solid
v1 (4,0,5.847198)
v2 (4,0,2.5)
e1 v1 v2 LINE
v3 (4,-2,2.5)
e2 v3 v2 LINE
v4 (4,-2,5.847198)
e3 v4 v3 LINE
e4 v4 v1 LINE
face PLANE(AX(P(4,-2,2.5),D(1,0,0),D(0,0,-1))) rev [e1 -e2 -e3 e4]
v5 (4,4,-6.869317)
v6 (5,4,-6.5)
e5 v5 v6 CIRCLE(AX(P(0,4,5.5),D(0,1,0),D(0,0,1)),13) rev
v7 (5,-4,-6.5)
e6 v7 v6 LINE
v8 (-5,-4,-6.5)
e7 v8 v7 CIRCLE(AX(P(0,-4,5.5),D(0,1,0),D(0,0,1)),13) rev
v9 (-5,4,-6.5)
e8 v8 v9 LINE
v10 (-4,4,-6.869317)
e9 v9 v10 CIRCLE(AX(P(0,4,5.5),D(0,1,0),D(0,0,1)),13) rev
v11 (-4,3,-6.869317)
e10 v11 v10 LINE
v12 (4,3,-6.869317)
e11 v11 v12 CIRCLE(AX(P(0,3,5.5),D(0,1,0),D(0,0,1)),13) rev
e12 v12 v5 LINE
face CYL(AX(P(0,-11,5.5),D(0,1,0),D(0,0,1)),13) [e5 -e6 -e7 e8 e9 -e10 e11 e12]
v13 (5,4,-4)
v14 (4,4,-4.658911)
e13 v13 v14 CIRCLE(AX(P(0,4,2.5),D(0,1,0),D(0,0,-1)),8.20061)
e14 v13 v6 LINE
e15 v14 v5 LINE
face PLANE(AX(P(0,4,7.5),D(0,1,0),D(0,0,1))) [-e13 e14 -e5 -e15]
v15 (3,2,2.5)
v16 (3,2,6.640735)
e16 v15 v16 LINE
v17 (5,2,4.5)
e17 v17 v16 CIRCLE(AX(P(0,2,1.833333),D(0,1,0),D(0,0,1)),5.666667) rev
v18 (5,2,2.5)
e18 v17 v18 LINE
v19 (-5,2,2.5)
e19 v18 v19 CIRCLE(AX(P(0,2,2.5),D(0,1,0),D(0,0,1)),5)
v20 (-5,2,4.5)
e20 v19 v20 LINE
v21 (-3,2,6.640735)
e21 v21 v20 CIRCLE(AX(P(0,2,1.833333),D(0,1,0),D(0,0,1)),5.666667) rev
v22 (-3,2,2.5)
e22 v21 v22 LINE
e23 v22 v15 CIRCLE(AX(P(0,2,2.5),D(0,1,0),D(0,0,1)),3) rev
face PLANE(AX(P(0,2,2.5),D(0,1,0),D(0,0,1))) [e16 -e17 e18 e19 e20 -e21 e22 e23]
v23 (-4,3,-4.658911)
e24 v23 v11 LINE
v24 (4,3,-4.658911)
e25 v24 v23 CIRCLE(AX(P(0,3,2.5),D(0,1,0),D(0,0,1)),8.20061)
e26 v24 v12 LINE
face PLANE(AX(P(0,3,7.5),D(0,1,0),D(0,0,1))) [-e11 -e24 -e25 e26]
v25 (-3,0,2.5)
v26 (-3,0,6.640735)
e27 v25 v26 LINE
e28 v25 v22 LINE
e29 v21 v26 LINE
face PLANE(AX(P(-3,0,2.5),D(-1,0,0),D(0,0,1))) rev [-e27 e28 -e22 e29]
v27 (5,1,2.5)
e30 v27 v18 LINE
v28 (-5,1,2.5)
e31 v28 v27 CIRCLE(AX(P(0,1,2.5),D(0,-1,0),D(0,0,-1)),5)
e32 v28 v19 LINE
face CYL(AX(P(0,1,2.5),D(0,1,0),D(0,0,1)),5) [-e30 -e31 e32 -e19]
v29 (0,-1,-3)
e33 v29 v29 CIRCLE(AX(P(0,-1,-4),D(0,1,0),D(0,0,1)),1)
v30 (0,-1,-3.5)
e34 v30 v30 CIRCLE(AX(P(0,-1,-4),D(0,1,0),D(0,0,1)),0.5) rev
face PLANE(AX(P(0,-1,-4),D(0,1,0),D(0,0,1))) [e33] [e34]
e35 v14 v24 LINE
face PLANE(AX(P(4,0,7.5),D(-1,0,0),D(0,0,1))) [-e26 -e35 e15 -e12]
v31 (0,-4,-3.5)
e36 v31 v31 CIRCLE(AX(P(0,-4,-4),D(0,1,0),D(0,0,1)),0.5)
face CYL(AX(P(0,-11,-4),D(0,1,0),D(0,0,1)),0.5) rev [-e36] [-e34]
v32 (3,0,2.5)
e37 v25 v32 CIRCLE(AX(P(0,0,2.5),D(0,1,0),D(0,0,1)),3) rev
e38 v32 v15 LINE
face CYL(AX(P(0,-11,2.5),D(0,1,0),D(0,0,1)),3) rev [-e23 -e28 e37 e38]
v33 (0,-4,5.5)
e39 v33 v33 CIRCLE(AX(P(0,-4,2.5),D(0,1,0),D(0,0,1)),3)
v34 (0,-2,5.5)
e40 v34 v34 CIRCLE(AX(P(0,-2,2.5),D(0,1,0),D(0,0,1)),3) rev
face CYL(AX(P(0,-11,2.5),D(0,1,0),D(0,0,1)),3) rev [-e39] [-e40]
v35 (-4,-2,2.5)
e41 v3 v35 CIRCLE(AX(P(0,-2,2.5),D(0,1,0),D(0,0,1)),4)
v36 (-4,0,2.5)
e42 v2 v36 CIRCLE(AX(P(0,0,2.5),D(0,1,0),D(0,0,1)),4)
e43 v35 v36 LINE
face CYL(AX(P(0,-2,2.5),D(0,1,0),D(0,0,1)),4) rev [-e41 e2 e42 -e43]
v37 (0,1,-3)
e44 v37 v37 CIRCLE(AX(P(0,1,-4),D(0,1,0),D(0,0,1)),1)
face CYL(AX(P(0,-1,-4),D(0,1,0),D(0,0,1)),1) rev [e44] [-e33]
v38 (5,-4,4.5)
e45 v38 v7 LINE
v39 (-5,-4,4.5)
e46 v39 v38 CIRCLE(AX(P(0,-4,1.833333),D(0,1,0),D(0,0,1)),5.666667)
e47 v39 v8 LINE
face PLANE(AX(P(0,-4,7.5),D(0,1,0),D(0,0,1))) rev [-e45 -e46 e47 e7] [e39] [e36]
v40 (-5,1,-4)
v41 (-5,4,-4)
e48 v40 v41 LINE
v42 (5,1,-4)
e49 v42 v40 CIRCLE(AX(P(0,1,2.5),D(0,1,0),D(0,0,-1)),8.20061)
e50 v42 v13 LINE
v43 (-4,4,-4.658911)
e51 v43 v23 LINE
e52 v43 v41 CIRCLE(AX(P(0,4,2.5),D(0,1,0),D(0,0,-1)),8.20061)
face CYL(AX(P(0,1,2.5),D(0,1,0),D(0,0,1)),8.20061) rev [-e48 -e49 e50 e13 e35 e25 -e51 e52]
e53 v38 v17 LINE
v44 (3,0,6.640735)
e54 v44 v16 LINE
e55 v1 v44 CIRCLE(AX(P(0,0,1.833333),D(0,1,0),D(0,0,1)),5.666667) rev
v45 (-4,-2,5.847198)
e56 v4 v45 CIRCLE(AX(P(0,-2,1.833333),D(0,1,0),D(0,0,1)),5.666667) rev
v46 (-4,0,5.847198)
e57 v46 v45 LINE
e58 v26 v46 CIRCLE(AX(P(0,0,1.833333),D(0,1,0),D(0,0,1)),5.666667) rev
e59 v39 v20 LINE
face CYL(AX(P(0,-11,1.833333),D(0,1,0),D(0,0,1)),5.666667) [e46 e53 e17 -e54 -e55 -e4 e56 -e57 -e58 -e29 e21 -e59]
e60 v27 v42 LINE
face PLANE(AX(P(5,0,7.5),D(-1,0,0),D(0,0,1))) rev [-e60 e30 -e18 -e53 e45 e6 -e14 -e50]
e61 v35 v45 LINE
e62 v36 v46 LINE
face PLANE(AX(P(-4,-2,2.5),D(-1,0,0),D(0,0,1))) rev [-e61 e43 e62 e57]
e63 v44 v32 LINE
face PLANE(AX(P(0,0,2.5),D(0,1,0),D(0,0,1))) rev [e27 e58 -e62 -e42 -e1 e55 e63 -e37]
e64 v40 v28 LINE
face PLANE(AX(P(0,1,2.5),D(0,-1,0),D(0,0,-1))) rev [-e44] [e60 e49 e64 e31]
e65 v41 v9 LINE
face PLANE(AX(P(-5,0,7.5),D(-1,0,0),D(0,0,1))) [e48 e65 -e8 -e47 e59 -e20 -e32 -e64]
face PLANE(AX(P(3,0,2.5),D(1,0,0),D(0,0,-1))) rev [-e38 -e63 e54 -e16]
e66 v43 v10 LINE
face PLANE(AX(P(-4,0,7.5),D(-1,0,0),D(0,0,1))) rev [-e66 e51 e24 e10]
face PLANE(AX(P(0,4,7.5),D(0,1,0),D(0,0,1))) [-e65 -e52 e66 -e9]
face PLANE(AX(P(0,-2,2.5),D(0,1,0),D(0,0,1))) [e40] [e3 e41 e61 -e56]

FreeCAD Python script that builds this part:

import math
import FreeCAD as App
import Part
import Sketcher
from FreeCAD import Vector

doc = App.newDocument("Part")
body = doc.addObject("PartDesign::Body", "Body")

# Sketch on XY plane
sketch1 = body.newObject("Sketcher::SketchObject", "Sketch")
sketch1.AttachmentSupport = (doc.getObject("XY_Plane"), [""])
sketch1.MapMode = "FlatFace"
sketch1.addGeometry(Part.LineSegment(Vector(-5, 4, 0), Vector(-5, -4, 0)), False)
sketch1.addGeometry(Part.LineSegment(Vector(-5, -4, 0), Vector(5, -4, 0)), False)
sketch1.addGeometry(Part.LineSegment(Vector(5, -4, 0), Vector(5, 4, 0)), False)
sketch1.addGeometry(Part.LineSegment(Vector(5, 4, 0), Vector(4, 4, 0)), False)
sketch1.addGeometry(Part.LineSegment(Vector(4, 4, 0), Vector(4, 3, 0)), False)
sketch1.addGeometry(Part.LineSegment(Vector(4, 3, 0), Vector(-4, 3, 0)), False)
sketch1.addGeometry(Part.LineSegment(Vector(-4, 3, 0), Vector(-4, 4, 0)), False)
sketch1.addGeometry(Part.LineSegment(Vector(-4, 4, 0), Vector(-5, 4, 0)), False)
sketch1.addConstraint(Sketcher.Constraint("Coincident", 0, 2, 1, 1))
sketch1.addConstraint(Sketcher.Constraint("Coincident", 1, 2, 2, 1))
sketch1.addConstraint(Sketcher.Constraint("Coincident", 2, 2, 3, 1))
sketch1.addConstraint(Sketcher.Constraint("Coincident", 3, 2, 4, 1))
sketch1.addConstraint(Sketcher.Constraint("Coincident", 4, 2, 5, 1))
sketch1.addConstraint(Sketcher.Constraint("Coincident", 5, 2, 6, 1))
sketch1.addConstraint(Sketcher.Constraint("Coincident", 6, 2, 7, 1))
sketch1.addConstraint(Sketcher.Constraint("Coincident", 7, 2, 0, 1))
sketch1.addConstraint(Sketcher.Constraint("Vertical", 0))
sketch1.addConstraint(Sketcher.Constraint("Horizontal", 1))
sketch1.addConstraint(Sketcher.Constraint("Vertical", 2))
sketch1.addConstraint(Sketcher.Constraint("Horizontal", 3))
sketch1.addConstraint(Sketcher.Constraint("Vertical", 4))
sketch1.addConstraint(Sketcher.Constraint("Horizontal", 5))
sketch1.addConstraint(Sketcher.Constraint("Vertical", 6))
sketch1.addConstraint(Sketcher.Constraint("Horizontal", 7))
sketch1.addConstraint(Sketcher.Constraint("Symmetric", 0, 2, 2, 2, -1, 1))
sketch1.addConstraint(Sketcher.Constraint("Symmetric", 3, 2, 6, 2, -2))
sketch1.addConstraint(Sketcher.Constraint("Equal", 5, 0))
sketch1.addConstraint(Sketcher.Constraint("Equal", 7, 4))
sketch1.addConstraint(Sketcher.Constraint("DistanceX", 1, 1, 1, 2, 10.0))
sketch1.addConstraint(Sketcher.Constraint("DistanceX", 3, 2, 3, 1, 1.0))
pad1 = body.newObject("PartDesign::Pad", "Pad")
pad1.Profile = sketch1
pad1.Length = 15
pad1.Midplane = True

# Sketch on XZ plane
sketch2 = body.newObject("Sketcher::SketchObject", "Sketch001")
sketch2.AttachmentSupport = (doc.getObject("XZ_Plane"), [""])
sketch2.MapMode = "FlatFace"
sketch2.AttachmentOffset = App.Placement(Vector(0, 0, -4), App.Rotation())
sketch2.addGeometry(Part.LineSegment(Vector(-5, -7.5, 0), Vector(-5, -6.5, 0)), False)
sketch2.addGeometry(Part.ArcOfCircle(Part.Circle(Vector(0, 5.5, 0), Vector(0, 0, 1), 13), math.radians(-113), math.radians(-90)), False)
sketch2.addGeometry(Part.LineSegment(Vector(0, -7.5, 0), Vector(-5, -7.5, 0)), False)
sketch2.addGeometry(Part.ArcOfCircle(Part.Circle(Vector(0, 5.5, 0), Vector(0, 0, 1), 13), math.radians(-90), math.radians(-72.08)), False)
sketch2.addGeometry(Part.ArcOfCircle(Part.Circle(Vector(0, 5.5, 0), Vector(0, 0, 1), 13), math.radians(-72.08), math.radians(-67.38)), False)
sketch2.addGeometry(Part.LineSegment(Vector(5, -6.5, 0), Vector(5, -7.5, 0)), False)
sketch2.addGeometry(Part.LineSegment(Vector(5, -7.5, 0), Vector(0, -7.5, 0)), False)
sketch2.addGeometry(Part.Circle(Vector(0, -4, 0), Vector(0, 0, 1), 0.5), False)
sketch2.addGeometry(Part.LineSegment(Vector(-5, 7.5, 0), Vector(0, 7.5, 0)), False)
sketch2.addGeometry(Part.ArcOfCircle(Part.Circle(Vector(0, 1.8, 0), Vector(0, 0, 1), 5.7), math.radians(90), math.radians(152)), False)
sketch2.addGeometry(Part.LineSegment(Vector(-5, 4.5, 0), Vector(-5, 7.5, 0)), False)
sketch2.addGeometry(Part.ArcOfCircle(Part.Circle(Vector(0, 1.8, 0), Vector(0, 0, 1), 5.7), math.radians(28.07), math.radians(45.1)), False)
sketch2.addGeometry(Part.ArcOfCircle(Part.Circle(Vector(0, 1.8, 0), Vector(0, 0, 1), 5.7), math.radians(45), math.radians(90)), False)
sketch2.addGeometry(Part.LineSegment(Vector(0, 7.5, 0), Vector(5, 7.5, 0)), False)
sketch2.addGeometry(Part.LineSegment(Vector(5, 7.5, 0), Vector(5, 4.5, 0)), False)
sketch2.addGeometry(Part.Circle(Vector(0, 2.5, 0), Vector(0, 0, 1), 3), False)
sketch2.addConstraint(Sketcher.Constraint("Coincident", 0, 2, 1, 1))
sketch2.addConstraint(Sketcher.Constraint("Tangent", 1, 2, 2, 1))
sketch2.addConstraint(Sketcher.Constraint("Coincident", 2, 2, 0, 1))
sketch2.addConstraint(Sketcher.Constraint("Tangent", 3, 2, 4, 1))
sketch2.addConstraint(Sketcher.Constraint("Coincident", 4, 2, 5, 1))
sketch2.addConstraint(Sketcher.Constraint("Coincident", 5, 2, 6, 1))
sketch2.addConstraint(Sketcher.Constraint("Tangent", 6, 2, 3, 1))
sketch2.addConstraint(Sketcher.Constraint("Tangent", 8, 2, 9, 1))
sketch2.addConstraint(Sketcher.Constraint("Coincident", 9, 2, 10, 1))
sketch2.addConstraint(Sketcher.Constraint("Coincident", 10, 2, 8, 1))
sketch2.addConstraint(Sketcher.Constraint("Tangent", 11, 2, 12, 1))
sketch2.addConstraint(Sketcher.Constraint("Tangent", 12, 2, 13, 1))
sketch2.addConstraint(Sketcher.Constraint("Coincident", 13, 2, 14, 1))
sketch2.addConstraint(Sketcher.Constraint("Coincident", 14, 2, 11, 1))
sketch2.addConstraint(Sketcher.Constraint("Vertical", 0))
sketch2.addConstraint(Sketcher.Constraint("Horizontal", 2))
sketch2.addConstraint(Sketcher.Constraint("Vertical", 5))
sketch2.addConstraint(Sketcher.Constraint("Horizontal", 6))
sketch2.addConstraint(Sketcher.Constraint("Horizontal", 8))
sketch2.addConstraint(Sketcher.Constraint("Vertical", 10))
sketch2.addConstraint(Sketcher.Constraint("Horizontal", 13))
sketch2.addConstraint(Sketcher.Constraint("Vertical", 14))
sketch2.addConstraint(Sketcher.Constraint("Coincident", 3, 3, 1, 3))
sketch2.addConstraint(Sketcher.Constraint("Coincident", 11, 3, 9, 3))
sketch2.addConstraint(Sketcher.Constraint("Coincident", 12, 2, 8, 2))
sketch2.addConstraint(Sketcher.Constraint("Equal", 1, 3))
sketch2.addConstraint(Sketcher.Constraint("Equal", 3, 4))
sketch2.addConstraint(Sketcher.Constraint("Symmetric", 1, 2, 8, 2, -1, 1))
sketch2.addConstraint(Sketcher.Constraint("Symmetric", 0, 2, 4, 2, -2))
sketch2.addConstraint(Sketcher.Constraint("PointOnObject", 7, 3, -2))
sketch2.addConstraint(Sketcher.Constraint("PointOnObject", 15, 3, -2))
sketch2.addConstraint(Sketcher.Constraint("Horizontal", 9, 2, 14, 2))
sketch2.addConstraint(Sketcher.Constraint("Vertical", 2, 2, 9, 2))
sketch2.addConstraint(Sketcher.Constraint("Vertical", 3, 2, 11, 2))
sketch2.addConstraint(Sketcher.Constraint("Diameter", 7, 1.0))
sketch2.addConstraint(Sketcher.Constraint("Diameter", 15, 6.0))
sketch2.addConstraint(Sketcher.Constraint("Radius", 1, 13.0))
sketch2.addConstraint(Sketcher.Constraint("DistanceX", 2, 2, 2, 1, 5.0))
sketch2.addConstraint(Sketcher.Constraint("DistanceY", 10, 1, 10, 2, 3.0))
sketch2.addConstraint(Sketcher.Constraint("DistanceY", 7, 3, -1, 1, 4.0))
sketch2.addConstraint(Sketcher.Constraint("DistanceX", -1, 1, 3, 2, 4.0))
sketch2.addConstraint(Sketcher.Constraint("DistanceY", 15, 3, 4, 3, 3.0))
sketch2.addConstraint(Sketcher.Constraint("DistanceY", 3, 3, 8, 2, 2.0))
pocket1 = body.newObject("PartDesign::Pocket", "Pocket")
pocket1.Profile = sketch2
pocket1.Length = 15
pocket1.Reversed = True

# Sketch on XZ plane
sketch3 = body.newObject("Sketcher::SketchObject", "Sketch002")
sketch3.AttachmentSupport = (doc.getObject("XZ_Plane"), [""])
sketch3.MapMode = "FlatFace"
sketch3.AttachmentOffset = App.Placement(Vector(0, 0, -3), App.Rotation())
sketch3.addGeometry(Part.LineSegment(Vector(3, 9.2, 0), Vector(3, 2.5, 0)), False)
sketch3.addGeometry(Part.ArcOfCircle(Part.Circle(Vector(0, 2.5, 0), Vector(0, 0, 1), 3), math.radians(180), math.radians(360)), False)
sketch3.addGeometry(Part.LineSegment(Vector(-3, 2.5, 0), Vector(-3, 9.2, 0)), False)
sketch3.addGeometry(Part.ArcOfCircle(Part.Circle(Vector(0, 9.2, 0), Vector(0, 0, 1), 3), math.radians(0), math.radians(180)), False)
sketch3.addConstraint(Sketcher.Constraint("Tangent", 0, 2, 1, 2))
sketch3.addConstraint(Sketcher.Constraint("Tangent", 1, 1, 2, 1))
sketch3.addConstraint(Sketcher.Constraint("Tangent", 2, 2, 3, 2))
sketch3.addConstraint(Sketcher.Constraint("Tangent", 3, 1, 0, 1))
sketch3.addConstraint(Sketcher.Constraint("Vertical", 0))
sketch3.addConstraint(Sketcher.Constraint("Vertical", 2))
sketch3.addConstraint(Sketcher.Constraint("PointOnObject", 1, 3, -2))
sketch3.addConstraint(Sketcher.Constraint("Radius", 1, 3.0))
sketch3.addConstraint(Sketcher.Constraint("DistanceY", -1, 1, 1, 3, 2.5))
sketch3.addConstraint(Sketcher.Constraint("DistanceY", 0, 2, 0, 1, 6.688092))
pocket2 = body.newObject("PartDesign::Pocket", "Pocket001")
pocket2.Profile = sketch3
pocket2.Length = 3
pocket2.Reversed = True

# Sketch on XZ plane
sketch4 = body.newObject("Sketcher::SketchObject", "Sketch003")
sketch4.AttachmentSupport = (doc.getObject("XZ_Plane"), [""])
sketch4.MapMode = "FlatFace"
sketch4.addGeometry(Part.LineSegment(Vector(4, 8.5, 0), Vector(4, 2.5, 0)), False)
sketch4.addGeometry(Part.ArcOfCircle(Part.Circle(Vector(0, 2.5, 0), Vector(0, 0, 1), 4), math.radians(180), math.radians(360)), False)
sketch4.addGeometry(Part.LineSegment(Vector(-4, 2.5, 0), Vector(-4, 8.5, 0)), False)
sketch4.addGeometry(Part.ArcOfCircle(Part.Circle(Vector(0, 8.5, 0), Vector(0, 0, 1), 4), math.radians(0), math.radians(180)), False)
sketch4.addConstraint(Sketcher.Constraint("Tangent", 0, 2, 1, 2))
sketch4.addConstraint(Sketcher.Constraint("Tangent", 1, 1, 2, 1))
sketch4.addConstraint(Sketcher.Constraint("Tangent", 2, 2, 3, 2))
sketch4.addConstraint(Sketcher.Constraint("Tangent", 3, 1, 0, 1))
sketch4.addConstraint(Sketcher.Constraint("Vertical", 0))
sketch4.addConstraint(Sketcher.Constraint("Vertical", 2))
sketch4.addConstraint(Sketcher.Constraint("PointOnObject", 1, 3, -2))
sketch4.addConstraint(Sketcher.Constraint("Radius", 1, 4.0))
sketch4.addConstraint(Sketcher.Constraint("DistanceY", -1, 1, 1, 3, 2.5))
sketch4.addConstraint(Sketcher.Constraint("DistanceY", 0, 2, 0, 1, 5.975889))
pocket3 = body.newObject("PartDesign::Pocket", "Pocket002")
pocket3.Profile = sketch4
pocket3.Length = 2
pocket3.Reversed = True

# Sketch on XZ plane
sketch5 = body.newObject("Sketcher::SketchObject", "Sketch004")
sketch5.AttachmentSupport = (doc.getObject("XZ_Plane"), [""])
sketch5.MapMode = "FlatFace"
sketch5.AttachmentOffset = App.Placement(Vector(0, 0, -4), App.Rotation())
sketch5.addGeometry(Part.LineSegment(Vector(5, 9, 0), Vector(5, 2, 0)), False)
sketch5.addGeometry(Part.ArcOfCircle(Part.Circle(Vector(0, 2, 0), Vector(0, 0, 1), 5), math.radians(180), math.radians(360)), False)
sketch5.addGeometry(Part.LineSegment(Vector(-5, 2, 0), Vector(-5, 9, 0)), False)
sketch5.addGeometry(Part.ArcOfCircle(Part.Circle(Vector(0, 9, 0), Vector(0, 0, 1), 5), math.radians(0), math.radians(180)), False)
sketch5.addConstraint(Sketcher.Constraint("Tangent", 0, 2, 1, 2))
sketch5.addConstraint(Sketcher.Constraint("Tangent", 1, 1, 2, 1))
sketch5.addConstraint(Sketcher.Constraint("Tangent", 2, 2, 3, 2))
sketch5.addConstraint(Sketcher.Constraint("Tangent", 3, 1, 0, 1))
sketch5.addConstraint(Sketcher.Constraint("Vertical", 0))
sketch5.addConstraint(Sketcher.Constraint("Vertical", 2))
sketch5.addConstraint(Sketcher.Constraint("PointOnObject", 1, 3, -2))
sketch5.addConstraint(Sketcher.Constraint("Radius", 1, 5.0))
sketch5.addConstraint(Sketcher.Constraint("DistanceY", -1, 1, 1, 3, 2.5))
sketch5.addConstraint(Sketcher.Constraint("DistanceY", 0, 2, 0, 1, 6.03636))
pocket4 = body.newObject("PartDesign::Pocket", "Pocket003")
pocket4.Profile = sketch5
pocket4.Length = 2
pocket4.Reversed = True

# Sketch on XZ plane
sketch6 = body.newObject("Sketcher::SketchObject", "Sketch005")
sketch6.AttachmentSupport = (doc.getObject("XZ_Plane"), [""])
sketch6.MapMode = "FlatFace"
sketch6.AttachmentOffset = App.Placement(Vector(0, 0, -4), App.Rotation())
sketch6.addGeometry(Part.LineSegment(Vector(-5, -4, 0), Vector(-5, 2, 0)), False)
sketch6.addGeometry(Part.ArcOfCircle(Part.Circle(Vector(0, 2, 0), Vector(0, 0, 1), 5), math.radians(180), math.radians(360)), False)
sketch6.addGeometry(Part.LineSegment(Vector(5, 2, 0), Vector(5, -4, 0)), False)
sketch6.addGeometry(Part.ArcOfCircle(Part.Circle(Vector(0, 3, 0), Vector(0, 0, 1), 8), math.radians(-128), math.radians(-52)), False)
sketch6.addConstraint(Sketcher.Constraint("Tangent", 0, 2, 1, 1))
sketch6.addConstraint(Sketcher.Constraint("Tangent", 1, 2, 2, 1))
sketch6.addConstraint(Sketcher.Constraint("Coincident", 2, 2, 3, 2))
sketch6.addConstraint(Sketcher.Constraint("Coincident", 3, 1, 0, 1))
sketch6.addConstraint(Sketcher.Constraint("Vertical", 0))
sketch6.addConstraint(Sketcher.Constraint("Vertical", 2))
sketch6.addConstraint(Sketcher.Constraint("Coincident", 3, 3, 1, 3))
sketch6.addConstraint(Sketcher.Constraint("PointOnObject", 1, 3, -2))
sketch6.addConstraint(Sketcher.Constraint("Radius", 1, 5.0))
sketch6.addConstraint(Sketcher.Constraint("DistanceY", 0, 1, 0, 2, 6.5))
sketch6.addConstraint(Sketcher.Constraint("DistanceY", 2, 2, -1, 1, 4.0))
pocket5 = body.newObject("PartDesign::Pocket", "Pocket004")
pocket5.Profile = sketch6
pocket5.Length = 3
pocket5.Reversed = True

# Sketch on XZ plane
sketch7 = body.newObject("Sketcher::SketchObject", "Sketch006")
sketch7.AttachmentSupport = (doc.getObject("XZ_Plane"), [""])
sketch7.MapMode = "FlatFace"
sketch7.AttachmentOffset = App.Placement(Vector(0, 0, -1), App.Rotation())
sketch7.addGeometry(Part.Circle(Vector(0, -4, 0), Vector(0, 0, 1), 1), False)
sketch7.addConstraint(Sketcher.Constraint("PointOnObject", 0, 3, -2))
sketch7.addConstraint(Sketcher.Constraint("Diameter", 0, 2.0))
sketch7.addConstraint(Sketcher.Constraint("DistanceY", 0, 3, -1, 1, 4.0))
pocket6 = body.newObject("PartDesign::Pocket", "Pocket005")
pocket6.Profile = sketch7
pocket6.Length = 2
pocket6.Reversed = True

doc.recompute()
